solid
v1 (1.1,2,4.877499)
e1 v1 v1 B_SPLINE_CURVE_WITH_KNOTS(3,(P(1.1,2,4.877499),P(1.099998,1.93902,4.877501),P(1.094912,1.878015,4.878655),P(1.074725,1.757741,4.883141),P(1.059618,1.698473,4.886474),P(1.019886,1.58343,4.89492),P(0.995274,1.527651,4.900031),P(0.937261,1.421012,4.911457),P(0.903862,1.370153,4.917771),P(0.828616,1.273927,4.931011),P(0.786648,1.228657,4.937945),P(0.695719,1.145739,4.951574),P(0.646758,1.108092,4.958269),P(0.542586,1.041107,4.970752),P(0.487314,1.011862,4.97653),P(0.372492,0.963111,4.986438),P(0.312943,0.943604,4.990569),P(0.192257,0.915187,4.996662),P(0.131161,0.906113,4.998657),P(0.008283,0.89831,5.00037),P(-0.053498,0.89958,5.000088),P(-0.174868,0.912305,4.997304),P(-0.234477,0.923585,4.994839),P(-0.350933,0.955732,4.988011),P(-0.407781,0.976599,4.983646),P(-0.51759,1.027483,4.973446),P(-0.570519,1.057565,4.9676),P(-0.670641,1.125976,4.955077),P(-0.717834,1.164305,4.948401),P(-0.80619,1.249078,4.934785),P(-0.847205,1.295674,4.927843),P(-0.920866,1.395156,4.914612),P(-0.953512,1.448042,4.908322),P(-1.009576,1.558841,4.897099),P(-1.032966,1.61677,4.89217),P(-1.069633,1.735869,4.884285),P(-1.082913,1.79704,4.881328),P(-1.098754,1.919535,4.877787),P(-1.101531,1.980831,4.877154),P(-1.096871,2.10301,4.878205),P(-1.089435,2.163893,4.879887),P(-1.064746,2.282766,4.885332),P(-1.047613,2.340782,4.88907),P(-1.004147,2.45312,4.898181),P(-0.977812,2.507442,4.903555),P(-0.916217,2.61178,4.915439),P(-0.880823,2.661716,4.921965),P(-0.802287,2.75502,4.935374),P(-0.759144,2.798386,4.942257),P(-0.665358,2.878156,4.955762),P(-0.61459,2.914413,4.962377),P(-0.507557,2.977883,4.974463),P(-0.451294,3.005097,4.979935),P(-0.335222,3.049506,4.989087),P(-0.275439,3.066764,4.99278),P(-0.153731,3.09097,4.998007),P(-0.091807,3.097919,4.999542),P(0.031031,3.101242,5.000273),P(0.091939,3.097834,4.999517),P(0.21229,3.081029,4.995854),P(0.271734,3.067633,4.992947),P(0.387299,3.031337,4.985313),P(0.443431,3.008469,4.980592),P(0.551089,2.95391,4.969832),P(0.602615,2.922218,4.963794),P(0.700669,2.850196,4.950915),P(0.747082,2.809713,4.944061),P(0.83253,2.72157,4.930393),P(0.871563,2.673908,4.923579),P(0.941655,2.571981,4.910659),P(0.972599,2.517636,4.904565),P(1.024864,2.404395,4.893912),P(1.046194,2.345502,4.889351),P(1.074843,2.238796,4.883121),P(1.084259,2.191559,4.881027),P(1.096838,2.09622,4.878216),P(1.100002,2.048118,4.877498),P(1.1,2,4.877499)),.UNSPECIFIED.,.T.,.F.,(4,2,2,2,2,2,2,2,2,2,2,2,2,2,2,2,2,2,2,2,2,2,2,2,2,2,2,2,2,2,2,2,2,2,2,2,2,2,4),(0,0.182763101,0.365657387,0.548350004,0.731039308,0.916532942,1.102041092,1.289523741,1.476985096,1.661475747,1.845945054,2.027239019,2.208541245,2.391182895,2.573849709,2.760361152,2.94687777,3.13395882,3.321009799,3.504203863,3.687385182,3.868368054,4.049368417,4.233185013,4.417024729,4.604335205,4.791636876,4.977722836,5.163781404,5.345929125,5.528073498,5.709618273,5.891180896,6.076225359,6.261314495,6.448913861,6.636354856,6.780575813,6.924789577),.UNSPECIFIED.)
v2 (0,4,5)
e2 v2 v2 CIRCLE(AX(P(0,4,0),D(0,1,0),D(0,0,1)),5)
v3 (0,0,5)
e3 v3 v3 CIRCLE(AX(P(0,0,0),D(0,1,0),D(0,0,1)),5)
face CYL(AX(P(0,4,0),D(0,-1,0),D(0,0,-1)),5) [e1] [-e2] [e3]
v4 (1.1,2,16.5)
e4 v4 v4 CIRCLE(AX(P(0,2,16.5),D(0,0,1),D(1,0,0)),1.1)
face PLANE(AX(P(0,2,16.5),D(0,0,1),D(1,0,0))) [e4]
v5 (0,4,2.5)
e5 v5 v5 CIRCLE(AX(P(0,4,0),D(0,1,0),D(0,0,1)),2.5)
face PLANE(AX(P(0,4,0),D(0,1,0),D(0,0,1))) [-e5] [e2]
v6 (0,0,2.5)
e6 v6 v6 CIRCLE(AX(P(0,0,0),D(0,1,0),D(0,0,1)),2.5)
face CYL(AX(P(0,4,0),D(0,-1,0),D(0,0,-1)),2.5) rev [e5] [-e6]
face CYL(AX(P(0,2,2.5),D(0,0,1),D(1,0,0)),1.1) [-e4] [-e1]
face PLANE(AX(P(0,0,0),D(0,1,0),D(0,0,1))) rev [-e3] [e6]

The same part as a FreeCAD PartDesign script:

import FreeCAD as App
import Part
import Sketcher
Q = App.Units.Quantity

doc = App.newDocument("Part")
body = doc.addObject("PartDesign::Body", "Body")

sketch1 = doc.addObject("Sketcher::SketchObject", "Sketch")
body.addObject(sketch1)
sketch1.AttachmentSupport = (doc.XZ_Plane, [""])
sketch1.MapMode = "FlatFace"
sketch1.addGeometry([
    Part.Circle(App.Vector(0, 0, 0), App.Vector(0, 0, 1), 5),
    Part.Circle(App.Vector(0, 0, 0), App.Vector(0, 0, 1), 2.5),
], False)
sketch1.addConstraint([
    Sketcher.Constraint("Coincident", 0, 3, -1, 1),
    Sketcher.Constraint("Coincident", 1, 3, -1, 1),
    Sketcher.Constraint("Diameter", 0, Q("10 mm")),
    Sketcher.Constraint("Diameter", 1, Q("5 mm")),
])
pad1 = doc.addObject("PartDesign::Pad", "Pad")
body.addObject(pad1)
pad1.Profile = sketch1
pad1.Length = 4
pad1.Reversed = True

sketch2 = doc.addObject("Sketcher::SketchObject", "Sketch001")
body.addObject(sketch2)
sketch2.AttachmentSupport = (doc.XY_Plane, [""])
sketch2.MapMode = "FlatFace"
sketch2.AttachmentOffset = App.Placement(App.Vector(0, 0, 16.5), App.Rotation())
sketch2.addGeometry(Part.Circle(App.Vector(0, 2, 0), App.Vector(0, 0, 1), 1.1), False)
sketch2.addConstraint([
    Sketcher.Constraint("PointOnObject", 0, 3, -2),
    Sketcher.Constraint("Diameter", 0, Q("2.2 mm")),
    Sketcher.Constraint("DistanceY", -1, 1, 0, 3, Q("2 mm")),
])
pad2 = doc.addObject("PartDesign::Pad", "Pad001")
body.addObject(pad2)
pad2.Profile = sketch2
pad2.Length = 14
pad2.Reversed = True

doc.recompute()
